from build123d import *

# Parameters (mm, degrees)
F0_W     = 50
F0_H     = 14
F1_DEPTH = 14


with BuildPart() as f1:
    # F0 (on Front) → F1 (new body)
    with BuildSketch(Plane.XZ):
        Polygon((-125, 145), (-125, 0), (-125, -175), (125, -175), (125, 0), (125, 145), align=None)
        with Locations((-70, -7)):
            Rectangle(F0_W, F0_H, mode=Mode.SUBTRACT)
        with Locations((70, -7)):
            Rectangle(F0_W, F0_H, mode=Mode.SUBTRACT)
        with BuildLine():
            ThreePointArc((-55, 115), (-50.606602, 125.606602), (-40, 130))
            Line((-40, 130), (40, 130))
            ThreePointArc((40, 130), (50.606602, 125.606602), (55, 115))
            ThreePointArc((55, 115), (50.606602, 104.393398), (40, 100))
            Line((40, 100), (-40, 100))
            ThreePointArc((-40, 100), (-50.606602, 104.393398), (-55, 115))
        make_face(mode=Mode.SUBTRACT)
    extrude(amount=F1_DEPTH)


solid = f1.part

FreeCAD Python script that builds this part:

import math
import FreeCAD as App
import Part
import Sketcher

doc = App.newDocument("Part")
body = doc.addObject("PartDesign::Body", "Body")

# Sketch on XZ plane
sketch1 = body.newObject("Sketcher::SketchObject", "Sketch")
sketch1.AttachmentSupport = (doc.getObject("XZ_Plane"), [""])
sketch1.MapMode = "FlatFace"
sketch1.addGeometry([
    Part.LineSegment(App.Vector(-125, 145, 0), App.Vector(-125, -175, 0)),  # 0
    Part.LineSegment(App.Vector(-125, -175, 0), App.Vector(125, -175, 0)),  # 1
    Part.LineSegment(App.Vector(125, -175, 0), App.Vector(125, 145, 0)),  # 2
    Part.LineSegment(App.Vector(125, 145, 0), App.Vector(-125, 145, 0)),  # 3
    Part.LineSegment(App.Vector(-45, -14, 0), App.Vector(-95, -14, 0)),  # 4
    Part.LineSegment(App.Vector(-95, -14, 0), App.Vector(-95, 0, 0)),  # 5
    Part.LineSegment(App.Vector(-95, 0, 0), App.Vector(-45, 0, 0)),  # 6
    Part.LineSegment(App.Vector(-45, 0, 0), App.Vector(-45, -14, 0)),  # 7
    Part.LineSegment(App.Vector(95, -14, 0), App.Vector(45, -14, 0)),  # 8
    Part.LineSegment(App.Vector(45, -14, 0), App.Vector(45, 0, 0)),  # 9
    Part.LineSegment(App.Vector(45, 0, 0), App.Vector(95, 0, 0)),  # 10
    Part.LineSegment(App.Vector(95, 0, 0), App.Vector(95, -14, 0)),  # 11
    Part.ArcOfCircle(Part.Circle(App.Vector(-40.000001, 114.999999, 0), App.Vector(0, 0, 1), 14.999999), math.radians(179.999996), math.radians(270.000004)),  # 12
    Part.ArcOfCircle(Part.Circle(App.Vector(-40.000001, 115.000001, 0), App.Vector(0, 0, 1), 14.999999), math.radians(89.999996), math.radians(180.000004)),  # 13
    Part.LineSegment(App.Vector(-40, 130, 0), App.Vector(40, 130, 0)),  # 14
    Part.ArcOfCircle(Part.Circle(App.Vector(40.000001, 115.000001, 0), App.Vector(0, 0, 1), 14.999999), math.radians(-0.000004), math.radians(90.000004)),  # 15
    Part.ArcOfCircle(Part.Circle(App.Vector(40.000001, 114.999999, 0), App.Vector(0, 0, 1), 14.999999), math.radians(-90.000004), math.radians(0.000004)),  # 16
    Part.LineSegment(App.Vector(40, 100, 0), App.Vector(-40, 100, 0)),  # 17
], False)
sketch1.addConstraint([
    Sketcher.Constraint("Coincident", 0, 2, 1, 1),
    Sketcher.Constraint("Coincident", 1, 2, 2, 1),
    Sketcher.Constraint("Coincident", 2, 2, 3, 1),
    Sketcher.Constraint("Coincident", 3, 2, 0, 1),
    Sketcher.Constraint("Coincident", 4, 2, 5, 1),
    Sketcher.Constraint("Coincident", 5, 2, 6, 1),
    Sketcher.Constraint("Coincident", 6, 2, 7, 1),
    Sketcher.Constraint("Coincident", 7, 2, 4, 1),
    Sketcher.Constraint("Coincident", 8, 2, 9, 1),
    Sketcher.Constraint("Coincident", 9, 2, 10, 1),
    Sketcher.Constraint("Coincident", 10, 2, 11, 1),
    Sketcher.Constraint("Coincident", 11, 2, 8, 1),
    Sketcher.Constraint("Tangent", 12, 1, 13, 2),
    Sketcher.Constraint("Tangent", 13, 1, 14, 1),
    Sketcher.Constraint("Tangent", 14, 2, 15, 2),
    Sketcher.Constraint("Tangent", 15, 1, 16, 2),
    Sketcher.Constraint("Tangent", 16, 1, 17, 1),
    Sketcher.Constraint("Tangent", 17, 2, 12, 2),
    Sketcher.Constraint("Vertical", 0),
    Sketcher.Constraint("Horizontal", 1),
    Sketcher.Constraint("Vertical", 2),
    Sketcher.Constraint("Horizontal", 3),
    Sketcher.Constraint("Horizontal", 4),
    Sketcher.Constraint("Vertical", 5),
    Sketcher.Constraint("Horizontal", 6),
    Sketcher.Constraint("Vertical", 7),
    Sketcher.Constraint("Horizontal", 8),
    Sketcher.Constraint("Vertical", 9),
    Sketcher.Constraint("Horizontal", 10),
    Sketcher.Constraint("Vertical", 11),
    Sketcher.Constraint("Horizontal", 14),
    Sketcher.Constraint("Horizontal", 17),
    Sketcher.Constraint("Equal", 12, 13),
    Sketcher.Constraint("Equal", 13, 15),
    Sketcher.Constraint("Symmetric", 6, 2, 9, 2, -1, 1),
    Sketcher.Constraint("Symmetric", 5, 2, 10, 2, -2),
    Sketcher.Constraint("Symmetric", 12, 1, 15, 1, -2),
    Sketcher.Constraint("Horizontal", 7, 2, 8, 2),
    Sketcher.Constraint("Horizontal", 16, 3, 12, 1),
    Sketcher.Constraint("Radius", 12, 14.999999),
    Sketcher.Constraint("DistanceX", 1, 1, 1, 2, 250.0),
    Sketcher.Constraint("DistanceX", 4, 2, 4, 1, 50.0),
    Sketcher.Constraint("DistanceX", 14, 1, 14, 2, 80.0),
    Sketcher.Constraint("DistanceY", 0, 2, 0, 1, 320.0),
    Sketcher.Constraint("DistanceY", 5, 1, 5, 2, 14.0),
    Sketcher.Constraint("DistanceY", -1, 1, 12, 3, 114.999999),
    Sketcher.Constraint("DistanceX", 0, 2, -1, 1, 125.0),
    Sketcher.Constraint("DistanceY", 0, 2, -1, 1, 175.0),
    Sketcher.Constraint("DistanceX", 4, 2, -1, 1, 95.0),
])
pad1 = body.newObject("PartDesign::Pad", "Pad")
pad1.Profile = sketch1
pad1.Length = 14

doc.recompute()
